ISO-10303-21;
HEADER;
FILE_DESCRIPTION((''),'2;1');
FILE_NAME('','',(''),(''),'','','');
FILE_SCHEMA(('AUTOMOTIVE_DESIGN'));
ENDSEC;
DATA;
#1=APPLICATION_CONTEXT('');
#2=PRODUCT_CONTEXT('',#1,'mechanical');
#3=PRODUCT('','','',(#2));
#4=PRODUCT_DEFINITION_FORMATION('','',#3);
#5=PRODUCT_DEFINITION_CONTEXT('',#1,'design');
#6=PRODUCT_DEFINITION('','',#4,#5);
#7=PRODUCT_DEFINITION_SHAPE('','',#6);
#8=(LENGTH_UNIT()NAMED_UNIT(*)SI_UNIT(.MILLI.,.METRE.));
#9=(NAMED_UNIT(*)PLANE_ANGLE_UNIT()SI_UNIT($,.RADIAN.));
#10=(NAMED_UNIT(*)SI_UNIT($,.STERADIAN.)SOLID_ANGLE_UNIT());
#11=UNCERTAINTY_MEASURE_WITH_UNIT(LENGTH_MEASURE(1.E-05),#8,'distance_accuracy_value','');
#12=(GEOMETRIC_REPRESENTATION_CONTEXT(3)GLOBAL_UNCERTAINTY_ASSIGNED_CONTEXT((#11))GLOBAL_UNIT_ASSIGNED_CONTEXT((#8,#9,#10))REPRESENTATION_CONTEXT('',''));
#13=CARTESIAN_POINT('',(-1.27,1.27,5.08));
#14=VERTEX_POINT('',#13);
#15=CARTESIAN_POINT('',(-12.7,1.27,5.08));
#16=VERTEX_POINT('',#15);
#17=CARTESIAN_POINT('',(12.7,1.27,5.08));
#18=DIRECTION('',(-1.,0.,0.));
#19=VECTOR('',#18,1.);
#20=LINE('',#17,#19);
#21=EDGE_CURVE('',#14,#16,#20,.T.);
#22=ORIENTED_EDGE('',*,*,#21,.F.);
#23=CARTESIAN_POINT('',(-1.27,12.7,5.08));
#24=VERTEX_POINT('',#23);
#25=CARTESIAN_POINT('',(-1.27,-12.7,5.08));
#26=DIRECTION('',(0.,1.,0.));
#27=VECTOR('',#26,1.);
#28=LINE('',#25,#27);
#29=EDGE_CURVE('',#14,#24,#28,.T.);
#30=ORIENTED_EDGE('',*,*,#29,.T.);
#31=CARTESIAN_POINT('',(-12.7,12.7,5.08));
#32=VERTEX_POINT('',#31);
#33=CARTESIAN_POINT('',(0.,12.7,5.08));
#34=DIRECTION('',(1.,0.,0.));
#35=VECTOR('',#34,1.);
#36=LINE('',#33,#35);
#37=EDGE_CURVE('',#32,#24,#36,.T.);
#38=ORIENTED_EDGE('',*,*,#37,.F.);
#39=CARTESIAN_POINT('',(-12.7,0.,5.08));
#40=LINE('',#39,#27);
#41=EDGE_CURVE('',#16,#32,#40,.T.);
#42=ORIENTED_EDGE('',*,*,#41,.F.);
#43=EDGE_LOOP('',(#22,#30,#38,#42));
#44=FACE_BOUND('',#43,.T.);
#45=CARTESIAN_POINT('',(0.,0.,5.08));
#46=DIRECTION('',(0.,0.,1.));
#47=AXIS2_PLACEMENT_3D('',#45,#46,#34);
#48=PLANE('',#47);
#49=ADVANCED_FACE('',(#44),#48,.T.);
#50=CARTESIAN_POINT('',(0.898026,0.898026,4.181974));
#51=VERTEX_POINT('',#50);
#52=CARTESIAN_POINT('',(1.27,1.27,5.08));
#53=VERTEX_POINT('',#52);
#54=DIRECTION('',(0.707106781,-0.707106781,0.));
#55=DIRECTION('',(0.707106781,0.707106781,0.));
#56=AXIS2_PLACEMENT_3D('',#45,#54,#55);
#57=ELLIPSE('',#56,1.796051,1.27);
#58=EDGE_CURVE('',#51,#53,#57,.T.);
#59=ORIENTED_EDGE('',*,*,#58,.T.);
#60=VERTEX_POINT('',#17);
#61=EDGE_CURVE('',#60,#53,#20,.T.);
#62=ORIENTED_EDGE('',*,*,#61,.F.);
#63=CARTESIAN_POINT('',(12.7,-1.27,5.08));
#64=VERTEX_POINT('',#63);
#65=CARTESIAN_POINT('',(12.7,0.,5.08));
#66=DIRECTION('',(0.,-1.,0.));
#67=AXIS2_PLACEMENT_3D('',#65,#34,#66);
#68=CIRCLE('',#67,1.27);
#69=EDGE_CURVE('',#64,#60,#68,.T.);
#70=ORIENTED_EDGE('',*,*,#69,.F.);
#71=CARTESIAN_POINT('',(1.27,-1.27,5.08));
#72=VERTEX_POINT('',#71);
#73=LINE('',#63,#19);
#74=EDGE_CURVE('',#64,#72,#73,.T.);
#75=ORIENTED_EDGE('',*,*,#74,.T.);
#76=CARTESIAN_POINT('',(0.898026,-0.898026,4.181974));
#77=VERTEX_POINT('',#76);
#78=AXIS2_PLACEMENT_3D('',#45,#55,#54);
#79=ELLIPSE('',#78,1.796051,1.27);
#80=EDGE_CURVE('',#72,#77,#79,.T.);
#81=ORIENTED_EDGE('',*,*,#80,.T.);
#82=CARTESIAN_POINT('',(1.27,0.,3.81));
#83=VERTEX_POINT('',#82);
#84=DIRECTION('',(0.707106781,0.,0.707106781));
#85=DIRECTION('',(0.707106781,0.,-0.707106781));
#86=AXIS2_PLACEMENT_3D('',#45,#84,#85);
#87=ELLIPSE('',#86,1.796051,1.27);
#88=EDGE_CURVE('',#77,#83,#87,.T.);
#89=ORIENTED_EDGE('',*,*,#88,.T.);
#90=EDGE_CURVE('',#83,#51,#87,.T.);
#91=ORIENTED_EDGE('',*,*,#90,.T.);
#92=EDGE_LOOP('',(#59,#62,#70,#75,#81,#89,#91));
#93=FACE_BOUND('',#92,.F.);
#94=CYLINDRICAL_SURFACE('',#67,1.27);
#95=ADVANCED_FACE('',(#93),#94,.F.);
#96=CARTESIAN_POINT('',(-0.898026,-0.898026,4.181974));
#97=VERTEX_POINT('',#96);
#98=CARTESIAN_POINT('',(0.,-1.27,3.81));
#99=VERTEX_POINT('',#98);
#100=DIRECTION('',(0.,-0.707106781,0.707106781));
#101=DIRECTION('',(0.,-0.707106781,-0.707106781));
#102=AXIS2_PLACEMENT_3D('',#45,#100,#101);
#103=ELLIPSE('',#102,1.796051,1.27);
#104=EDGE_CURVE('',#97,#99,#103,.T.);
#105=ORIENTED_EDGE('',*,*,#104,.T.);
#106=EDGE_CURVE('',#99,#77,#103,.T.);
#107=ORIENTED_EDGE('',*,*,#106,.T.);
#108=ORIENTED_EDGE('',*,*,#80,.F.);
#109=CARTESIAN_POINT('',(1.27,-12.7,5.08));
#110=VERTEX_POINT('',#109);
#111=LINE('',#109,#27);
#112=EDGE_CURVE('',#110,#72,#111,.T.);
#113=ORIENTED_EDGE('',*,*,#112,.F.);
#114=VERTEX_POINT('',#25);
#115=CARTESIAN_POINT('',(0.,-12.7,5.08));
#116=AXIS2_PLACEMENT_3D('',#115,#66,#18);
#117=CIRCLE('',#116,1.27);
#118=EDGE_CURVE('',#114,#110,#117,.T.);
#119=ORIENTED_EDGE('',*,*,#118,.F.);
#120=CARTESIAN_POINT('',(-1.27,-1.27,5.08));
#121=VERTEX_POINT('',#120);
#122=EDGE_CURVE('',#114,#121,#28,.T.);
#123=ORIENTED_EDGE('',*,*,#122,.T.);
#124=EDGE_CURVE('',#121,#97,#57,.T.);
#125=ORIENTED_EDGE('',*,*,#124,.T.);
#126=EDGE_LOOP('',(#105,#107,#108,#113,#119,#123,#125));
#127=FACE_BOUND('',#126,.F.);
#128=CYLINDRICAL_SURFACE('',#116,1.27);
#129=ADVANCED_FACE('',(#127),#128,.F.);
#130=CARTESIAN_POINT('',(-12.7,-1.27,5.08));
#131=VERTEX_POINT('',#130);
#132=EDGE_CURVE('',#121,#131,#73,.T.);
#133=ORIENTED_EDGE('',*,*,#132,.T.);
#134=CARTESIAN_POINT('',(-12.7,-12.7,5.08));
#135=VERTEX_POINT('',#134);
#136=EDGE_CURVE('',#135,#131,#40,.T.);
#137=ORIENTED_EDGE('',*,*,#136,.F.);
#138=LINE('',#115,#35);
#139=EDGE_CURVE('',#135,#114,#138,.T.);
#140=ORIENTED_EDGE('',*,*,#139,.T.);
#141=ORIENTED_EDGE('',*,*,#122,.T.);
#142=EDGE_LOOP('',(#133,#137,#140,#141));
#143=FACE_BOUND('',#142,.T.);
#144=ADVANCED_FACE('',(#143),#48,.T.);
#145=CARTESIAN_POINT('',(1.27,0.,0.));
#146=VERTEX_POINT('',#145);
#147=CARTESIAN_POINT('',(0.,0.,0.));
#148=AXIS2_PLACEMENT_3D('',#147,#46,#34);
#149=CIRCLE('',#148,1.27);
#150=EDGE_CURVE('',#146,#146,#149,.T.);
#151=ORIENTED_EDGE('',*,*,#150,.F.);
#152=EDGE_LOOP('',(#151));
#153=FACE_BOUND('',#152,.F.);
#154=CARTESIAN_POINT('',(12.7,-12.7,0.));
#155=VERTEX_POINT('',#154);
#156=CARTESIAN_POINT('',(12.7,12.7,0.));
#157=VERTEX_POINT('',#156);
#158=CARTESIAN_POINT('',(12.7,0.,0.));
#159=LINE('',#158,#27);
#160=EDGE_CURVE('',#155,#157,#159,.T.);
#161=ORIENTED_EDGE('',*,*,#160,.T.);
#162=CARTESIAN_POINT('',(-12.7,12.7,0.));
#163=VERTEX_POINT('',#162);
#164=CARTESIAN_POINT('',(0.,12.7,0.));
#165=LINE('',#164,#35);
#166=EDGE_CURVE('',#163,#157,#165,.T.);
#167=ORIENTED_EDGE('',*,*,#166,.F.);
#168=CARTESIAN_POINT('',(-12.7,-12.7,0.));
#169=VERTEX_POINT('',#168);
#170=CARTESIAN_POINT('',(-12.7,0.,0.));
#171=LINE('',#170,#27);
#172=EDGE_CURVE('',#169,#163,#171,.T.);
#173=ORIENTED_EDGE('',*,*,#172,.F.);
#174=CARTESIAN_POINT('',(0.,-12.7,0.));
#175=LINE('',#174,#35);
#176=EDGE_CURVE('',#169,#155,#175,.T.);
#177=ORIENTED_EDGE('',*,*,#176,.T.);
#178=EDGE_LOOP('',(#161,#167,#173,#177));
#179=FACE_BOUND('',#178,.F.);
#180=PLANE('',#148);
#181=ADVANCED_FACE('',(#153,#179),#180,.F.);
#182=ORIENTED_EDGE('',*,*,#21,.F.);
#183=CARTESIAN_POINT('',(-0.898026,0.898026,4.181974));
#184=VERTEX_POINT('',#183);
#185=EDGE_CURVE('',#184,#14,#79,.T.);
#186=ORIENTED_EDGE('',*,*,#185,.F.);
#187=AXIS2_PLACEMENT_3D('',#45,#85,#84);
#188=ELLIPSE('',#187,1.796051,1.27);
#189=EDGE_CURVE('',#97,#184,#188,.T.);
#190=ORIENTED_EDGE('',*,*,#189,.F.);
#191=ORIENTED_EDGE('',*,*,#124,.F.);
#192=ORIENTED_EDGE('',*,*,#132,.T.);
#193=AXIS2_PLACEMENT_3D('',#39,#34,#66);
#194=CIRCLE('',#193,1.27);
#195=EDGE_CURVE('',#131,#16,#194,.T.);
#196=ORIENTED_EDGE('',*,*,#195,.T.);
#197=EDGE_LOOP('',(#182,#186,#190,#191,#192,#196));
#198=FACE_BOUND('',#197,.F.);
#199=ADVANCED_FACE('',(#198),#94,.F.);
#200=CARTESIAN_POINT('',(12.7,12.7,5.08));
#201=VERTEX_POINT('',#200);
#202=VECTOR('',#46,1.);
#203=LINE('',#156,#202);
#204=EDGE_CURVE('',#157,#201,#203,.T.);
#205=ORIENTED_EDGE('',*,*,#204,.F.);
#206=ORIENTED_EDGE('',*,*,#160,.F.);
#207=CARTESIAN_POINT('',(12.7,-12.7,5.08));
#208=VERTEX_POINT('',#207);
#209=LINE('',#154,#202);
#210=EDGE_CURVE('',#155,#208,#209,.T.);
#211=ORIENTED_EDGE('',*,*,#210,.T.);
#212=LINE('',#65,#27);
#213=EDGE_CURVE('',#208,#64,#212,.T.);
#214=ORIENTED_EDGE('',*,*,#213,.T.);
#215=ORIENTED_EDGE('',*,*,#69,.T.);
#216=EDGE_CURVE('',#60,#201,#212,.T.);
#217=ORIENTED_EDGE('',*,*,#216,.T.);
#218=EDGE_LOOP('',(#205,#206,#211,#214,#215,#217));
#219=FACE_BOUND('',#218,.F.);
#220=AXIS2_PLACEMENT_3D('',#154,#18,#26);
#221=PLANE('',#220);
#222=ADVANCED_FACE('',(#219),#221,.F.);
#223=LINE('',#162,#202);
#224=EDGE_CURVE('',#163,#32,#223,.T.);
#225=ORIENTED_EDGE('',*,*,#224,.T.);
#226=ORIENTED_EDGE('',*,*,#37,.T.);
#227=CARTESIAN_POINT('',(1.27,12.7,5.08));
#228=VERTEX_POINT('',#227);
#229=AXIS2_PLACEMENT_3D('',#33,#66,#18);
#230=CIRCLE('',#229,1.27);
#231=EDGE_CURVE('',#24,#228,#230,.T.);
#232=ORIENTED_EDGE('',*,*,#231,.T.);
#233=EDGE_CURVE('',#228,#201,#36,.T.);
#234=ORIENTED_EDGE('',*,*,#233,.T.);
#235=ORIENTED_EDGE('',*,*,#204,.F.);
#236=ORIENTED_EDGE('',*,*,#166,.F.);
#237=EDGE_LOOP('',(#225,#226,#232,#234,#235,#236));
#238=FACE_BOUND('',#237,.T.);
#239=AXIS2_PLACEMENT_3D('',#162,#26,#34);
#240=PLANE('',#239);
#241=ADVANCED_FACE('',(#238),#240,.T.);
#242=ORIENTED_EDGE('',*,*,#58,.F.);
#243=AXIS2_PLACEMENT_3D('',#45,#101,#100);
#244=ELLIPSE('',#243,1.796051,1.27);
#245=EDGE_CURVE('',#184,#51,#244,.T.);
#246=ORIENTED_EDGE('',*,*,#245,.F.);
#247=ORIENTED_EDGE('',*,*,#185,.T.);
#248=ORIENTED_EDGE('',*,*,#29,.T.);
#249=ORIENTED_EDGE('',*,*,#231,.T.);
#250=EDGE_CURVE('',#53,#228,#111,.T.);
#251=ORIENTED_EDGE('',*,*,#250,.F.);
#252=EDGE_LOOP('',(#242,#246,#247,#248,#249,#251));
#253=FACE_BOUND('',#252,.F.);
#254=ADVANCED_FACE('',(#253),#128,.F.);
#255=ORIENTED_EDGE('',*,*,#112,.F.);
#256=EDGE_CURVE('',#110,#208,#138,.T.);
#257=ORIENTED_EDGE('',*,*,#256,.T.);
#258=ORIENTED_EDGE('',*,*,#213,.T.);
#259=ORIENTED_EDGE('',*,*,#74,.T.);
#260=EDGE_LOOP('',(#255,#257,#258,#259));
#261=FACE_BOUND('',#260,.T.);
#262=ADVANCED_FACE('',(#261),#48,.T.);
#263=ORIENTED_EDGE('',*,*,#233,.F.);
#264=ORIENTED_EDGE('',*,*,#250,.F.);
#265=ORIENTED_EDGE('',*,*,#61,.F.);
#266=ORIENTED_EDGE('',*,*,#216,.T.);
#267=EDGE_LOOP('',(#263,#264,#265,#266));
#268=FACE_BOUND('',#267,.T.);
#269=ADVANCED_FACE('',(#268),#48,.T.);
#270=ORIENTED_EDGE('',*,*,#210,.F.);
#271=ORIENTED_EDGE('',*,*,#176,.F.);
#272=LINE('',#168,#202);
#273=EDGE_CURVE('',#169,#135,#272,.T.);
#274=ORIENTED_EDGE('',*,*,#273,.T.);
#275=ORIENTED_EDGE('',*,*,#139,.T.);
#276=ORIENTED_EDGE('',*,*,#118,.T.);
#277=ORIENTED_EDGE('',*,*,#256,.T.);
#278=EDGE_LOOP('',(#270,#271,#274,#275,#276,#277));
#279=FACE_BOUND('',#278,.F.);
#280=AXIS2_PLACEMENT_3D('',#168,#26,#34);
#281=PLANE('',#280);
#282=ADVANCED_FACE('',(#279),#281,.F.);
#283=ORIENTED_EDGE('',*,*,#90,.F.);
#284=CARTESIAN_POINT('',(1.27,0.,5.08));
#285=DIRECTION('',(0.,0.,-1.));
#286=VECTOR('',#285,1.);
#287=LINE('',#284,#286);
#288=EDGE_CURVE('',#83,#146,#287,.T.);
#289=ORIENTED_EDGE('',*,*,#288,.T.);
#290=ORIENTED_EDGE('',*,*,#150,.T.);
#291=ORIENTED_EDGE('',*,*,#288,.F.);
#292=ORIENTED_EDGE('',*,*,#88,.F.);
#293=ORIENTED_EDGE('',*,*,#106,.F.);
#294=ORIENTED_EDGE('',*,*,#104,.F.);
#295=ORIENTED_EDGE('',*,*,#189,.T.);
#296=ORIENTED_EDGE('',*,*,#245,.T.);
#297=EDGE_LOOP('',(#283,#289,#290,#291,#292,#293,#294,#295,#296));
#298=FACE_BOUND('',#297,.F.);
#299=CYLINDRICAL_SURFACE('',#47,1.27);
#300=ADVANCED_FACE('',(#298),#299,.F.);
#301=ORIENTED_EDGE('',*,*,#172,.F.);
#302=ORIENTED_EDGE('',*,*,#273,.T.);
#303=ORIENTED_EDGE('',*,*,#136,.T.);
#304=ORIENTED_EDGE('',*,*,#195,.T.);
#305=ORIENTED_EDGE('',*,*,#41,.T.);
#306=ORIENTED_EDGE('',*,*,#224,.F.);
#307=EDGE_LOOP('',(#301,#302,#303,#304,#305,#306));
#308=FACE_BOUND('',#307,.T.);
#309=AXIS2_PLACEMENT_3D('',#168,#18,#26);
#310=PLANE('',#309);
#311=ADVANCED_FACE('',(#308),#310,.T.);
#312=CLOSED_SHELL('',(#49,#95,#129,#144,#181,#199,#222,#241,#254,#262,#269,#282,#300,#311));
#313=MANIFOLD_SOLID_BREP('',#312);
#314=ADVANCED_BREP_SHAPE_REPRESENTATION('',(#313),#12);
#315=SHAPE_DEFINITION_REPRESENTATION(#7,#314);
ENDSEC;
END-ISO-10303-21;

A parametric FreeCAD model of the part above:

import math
import FreeCAD as App
import Part
import Sketcher
from FreeCAD import Vector
Q = App.Units.Quantity

doc = App.newDocument("Part")
body = doc.addObject("PartDesign::Body", "Body")

# Sketch on XY plane
sketch1 = body.newObject("Sketcher::SketchObject", "Sketch")
sketch1.AttachmentSupport = (doc.getObject("XY_Plane"), [""])
sketch1.MapMode = "FlatFace"
sketch1.addGeometry(Part.LineSegment(Vector(-13, 13, 0), Vector(-13, -13, 0)), False)
sketch1.addGeometry(Part.LineSegment(Vector(-13, -13, 0), Vector(13, -13, 0)), False)
sketch1.addGeometry(Part.LineSegment(Vector(13, -13, 0), Vector(13, 13, 0)), False)
sketch1.addGeometry(Part.LineSegment(Vector(13, 13, 0), Vector(-13, 13, 0)), False)
sketch1.addConstraint(Sketcher.Constraint("Coincident", 0, 2, 1, 1))
sketch1.addConstraint(Sketcher.Constraint("Coincident", 1, 2, 2, 1))
sketch1.addConstraint(Sketcher.Constraint("Coincident", 2, 2, 3, 1))
sketch1.addConstraint(Sketcher.Constraint("Coincident", 3, 2, 0, 1))
sketch1.addConstraint(Sketcher.Constraint("Vertical", 0))
sketch1.addConstraint(Sketcher.Constraint("Horizontal", 1))
sketch1.addConstraint(Sketcher.Constraint("Vertical", 2))
sketch1.addConstraint(Sketcher.Constraint("Horizontal", 3))
sketch1.addConstraint(Sketcher.Constraint("Symmetric", 0, 2, 2, 2, -1, 1))
sketch1.addConstraint(Sketcher.Constraint("Equal", 3, 0))
sketch1.addConstraint(Sketcher.Constraint("DistanceX", 1, 1, 1, 2, Q("1 in")))
pad1 = body.newObject("PartDesign::Pad", "Pad")
pad1.Profile = sketch1
pad1.Length = Q("0.2 in")

# Sketch on YZ plane
sketch2 = body.newObject("Sketcher::SketchObject", "Sketch001")
sketch2.AttachmentSupport = (doc.getObject("YZ_Plane"), [""])
sketch2.MapMode = "FlatFace"
sketch2.AttachmentOffset = App.Placement(Vector(0, 0, 0.5 * 25.4), App.Rotation())
sketch2.addGeometry(Part.ArcOfCircle(Part.Circle(Vector(0, 5.1, 0), Vector(0, 0, 1), 1.3), math.radians(180), math.radians(360)), False)
sketch2.addGeometry(Part.LineSegment(Vector(1.3, 5.1, 0), Vector(-1.3, 5.1, 0)), False)
sketch2.addConstraint(Sketcher.Constraint("Coincident", 0, 1, 1, 2))
sketch2.addConstraint(Sketcher.Constraint("Coincident", 1, 1, 0, 2))
sketch2.addConstraint(Sketcher.Constraint("Horizontal", 1))
sketch2.addConstraint(Sketcher.Constraint("PointOnObject", 0, 3, -2))
sketch2.addConstraint(Sketcher.Constraint("Radius", 0, Q("0.05 in")))
sketch2.addConstraint(Sketcher.Constraint("DistanceY", -1, 1, 0, 3, Q("0.2 in")))
sketch2.addConstraint(Sketcher.Constraint("DistanceY", -1, 1, 0, 1, Q("0.2 in")))
pocket1 = body.newObject("PartDesign::Pocket", "Pocket")
pocket1.Profile = sketch2
pocket1.Length = Q("1 in")

# Sketch on XZ plane
sketch3 = body.newObject("Sketcher::SketchObject", "Sketch002")
sketch3.AttachmentSupport = (doc.getObject("XZ_Plane"), [""])
sketch3.MapMode = "FlatFace"
sketch3.AttachmentOffset = App.Placement(Vector(0, 0, 0.5 * 25.4), App.Rotation())
sketch3.addGeometry(Part.ArcOfCircle(Part.Circle(Vector(0, 5.1, 0), Vector(0, 0, 1), 1.3), math.radians(180), math.radians(360)), False)
sketch3.addGeometry(Part.LineSegment(Vector(1.3, 5.1, 0), Vector(-1.3, 5.1, 0)), False)
sketch3.addConstraint(Sketcher.Constraint("Coincident", 0, 1, 1, 2))
sketch3.addConstraint(Sketcher.Constraint("Coincident", 1, 1, 0, 2))
sketch3.addConstraint(Sketcher.Constraint("Horizontal", 1))
sketch3.addConstraint(Sketcher.Constraint("PointOnObject", 0, 3, -2))
sketch3.addConstraint(Sketcher.Constraint("Radius", 0, Q("0.05 in")))
sketch3.addConstraint(Sketcher.Constraint("DistanceY", -1, 1, 0, 3, Q("0.2 in")))
sketch3.addConstraint(Sketcher.Constraint("DistanceY", -1, 1, 0, 1, Q("0.2 in")))
pocket2 = body.newObject("PartDesign::Pocket", "Pocket001")
pocket2.Profile = sketch3
pocket2.Length = Q("1 in")

# Sketch on XY plane
sketch4 = body.newObject("Sketcher::SketchObject", "Sketch003")
sketch4.AttachmentSupport = (doc.getObject("XY_Plane"), [""])
sketch4.MapMode = "FlatFace"
sketch4.AttachmentOffset = App.Placement(Vector(0, 0, 0.2 * 25.4), App.Rotation())
sketch4.addGeometry(Part.Circle(Vector(0, 0, 0), Vector(0, 0, 1), 1.3), False)
sketch4.addConstraint(Sketcher.Constraint("Coincident", 0, 3, -1, 1))
sketch4.addConstraint(Sketcher.Constraint("Diameter", 0, Q("0.1 in")))
pocket3 = body.newObject("PartDesign::Pocket", "Pocket002")
pocket3.Profile = sketch4
pocket3.Length = Q("1 in")

doc.recompute()
